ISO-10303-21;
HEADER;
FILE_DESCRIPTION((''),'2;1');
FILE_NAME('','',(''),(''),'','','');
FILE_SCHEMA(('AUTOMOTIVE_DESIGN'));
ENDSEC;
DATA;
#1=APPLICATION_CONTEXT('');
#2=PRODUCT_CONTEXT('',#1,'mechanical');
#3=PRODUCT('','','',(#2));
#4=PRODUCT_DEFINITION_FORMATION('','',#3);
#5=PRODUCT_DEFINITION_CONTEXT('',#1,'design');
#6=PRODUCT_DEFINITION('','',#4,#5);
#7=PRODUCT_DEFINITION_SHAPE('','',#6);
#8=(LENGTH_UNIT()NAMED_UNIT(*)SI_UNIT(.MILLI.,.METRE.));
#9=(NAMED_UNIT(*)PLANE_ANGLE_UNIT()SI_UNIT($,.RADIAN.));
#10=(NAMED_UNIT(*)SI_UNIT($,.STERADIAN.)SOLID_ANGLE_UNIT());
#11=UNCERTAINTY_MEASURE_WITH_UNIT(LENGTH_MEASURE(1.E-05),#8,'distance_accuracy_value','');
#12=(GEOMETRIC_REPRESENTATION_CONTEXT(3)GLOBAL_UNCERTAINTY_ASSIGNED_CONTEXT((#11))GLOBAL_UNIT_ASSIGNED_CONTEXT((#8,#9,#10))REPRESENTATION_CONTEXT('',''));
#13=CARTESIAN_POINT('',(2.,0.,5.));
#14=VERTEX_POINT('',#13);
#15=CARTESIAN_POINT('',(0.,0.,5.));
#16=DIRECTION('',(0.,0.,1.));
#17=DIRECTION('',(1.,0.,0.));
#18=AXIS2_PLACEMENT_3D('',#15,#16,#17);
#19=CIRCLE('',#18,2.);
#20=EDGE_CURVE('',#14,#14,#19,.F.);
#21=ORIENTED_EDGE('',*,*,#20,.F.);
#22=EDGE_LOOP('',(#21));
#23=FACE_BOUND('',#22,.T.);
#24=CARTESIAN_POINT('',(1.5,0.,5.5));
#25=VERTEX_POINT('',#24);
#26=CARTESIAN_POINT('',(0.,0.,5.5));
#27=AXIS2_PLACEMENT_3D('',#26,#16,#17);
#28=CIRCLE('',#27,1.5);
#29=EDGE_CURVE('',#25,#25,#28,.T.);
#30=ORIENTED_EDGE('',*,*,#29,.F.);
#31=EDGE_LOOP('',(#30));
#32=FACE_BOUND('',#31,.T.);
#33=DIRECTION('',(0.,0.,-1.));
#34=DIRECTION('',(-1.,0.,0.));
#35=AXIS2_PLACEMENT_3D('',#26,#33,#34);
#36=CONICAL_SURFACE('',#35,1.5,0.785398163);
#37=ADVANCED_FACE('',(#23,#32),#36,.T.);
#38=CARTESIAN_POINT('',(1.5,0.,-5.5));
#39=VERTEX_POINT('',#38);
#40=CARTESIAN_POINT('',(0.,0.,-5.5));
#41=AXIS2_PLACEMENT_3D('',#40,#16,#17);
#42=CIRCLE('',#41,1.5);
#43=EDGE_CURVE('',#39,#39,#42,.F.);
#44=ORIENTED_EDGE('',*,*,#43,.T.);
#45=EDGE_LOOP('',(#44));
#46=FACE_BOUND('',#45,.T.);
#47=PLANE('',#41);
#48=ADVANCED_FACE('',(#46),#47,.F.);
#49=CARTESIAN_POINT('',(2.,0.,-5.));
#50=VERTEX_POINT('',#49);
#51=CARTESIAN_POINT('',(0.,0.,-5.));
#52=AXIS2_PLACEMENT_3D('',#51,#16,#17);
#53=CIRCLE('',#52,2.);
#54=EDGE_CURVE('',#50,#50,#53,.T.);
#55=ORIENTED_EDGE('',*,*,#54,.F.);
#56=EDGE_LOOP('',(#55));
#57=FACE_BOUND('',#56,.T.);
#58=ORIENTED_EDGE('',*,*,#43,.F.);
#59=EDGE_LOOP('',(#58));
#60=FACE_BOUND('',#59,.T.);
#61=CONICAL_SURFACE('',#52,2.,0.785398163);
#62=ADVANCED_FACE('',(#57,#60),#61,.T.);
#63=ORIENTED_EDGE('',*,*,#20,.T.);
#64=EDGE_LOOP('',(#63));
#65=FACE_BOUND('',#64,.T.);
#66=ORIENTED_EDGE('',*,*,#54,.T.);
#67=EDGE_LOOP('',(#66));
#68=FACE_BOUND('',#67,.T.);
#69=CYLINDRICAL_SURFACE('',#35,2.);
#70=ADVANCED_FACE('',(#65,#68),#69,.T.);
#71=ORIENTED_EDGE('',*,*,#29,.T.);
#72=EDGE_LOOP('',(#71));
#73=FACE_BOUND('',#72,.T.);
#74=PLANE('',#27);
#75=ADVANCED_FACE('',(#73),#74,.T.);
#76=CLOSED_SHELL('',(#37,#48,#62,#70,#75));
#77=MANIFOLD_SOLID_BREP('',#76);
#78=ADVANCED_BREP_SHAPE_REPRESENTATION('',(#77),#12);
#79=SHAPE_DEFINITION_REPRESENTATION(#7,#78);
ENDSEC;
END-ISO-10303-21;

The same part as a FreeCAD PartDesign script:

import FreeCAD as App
import Part
import Sketcher

V = App.Vector


def edges_at(feature, points):
    """Names of the edges that pass closest to the given points."""
    edges = feature.Shape.Edges
    near = lambda p: min(range(len(edges)), key=lambda i: edges[i].distToShape(Part.Vertex(*p))[0])
    return sorted({f"Edge{near(p) + 1}" for p in points})

doc = App.newDocument("Part")
body = doc.addObject("PartDesign::Body", "Body")

# Sketch on XY plane
sketch1 = doc.addObject("Sketcher::SketchObject", "Sketch")
body.addObject(sketch1)
sketch1.AttachmentSupport = (doc.XY_Plane, [""])
sketch1.MapMode = "FlatFace"
sketch1.addGeometry(Part.Circle(V(0, 0, 0), V(0, 0, 1), 2), False)
sketch1.addConstraint([
    Sketcher.Constraint("Coincident", 0, 3, -1, 1),
    Sketcher.Constraint("Diameter", 0, 4.0),
])
pad1 = doc.addObject("PartDesign::Pad", "Pad")
body.addObject(pad1)
pad1.Profile = sketch1
pad1.Length = 11
pad1.Midplane = True
doc.recompute()

chamfer = doc.addObject("PartDesign::Chamfer", "Chamfer")
body.addObject(chamfer)
chamfer.Base = (pad1, edges_at(pad1, [(-2, 0, -5.5), (-2, 0, 5.5)]))
chamfer.Size = 0.5

doc.recompute()
